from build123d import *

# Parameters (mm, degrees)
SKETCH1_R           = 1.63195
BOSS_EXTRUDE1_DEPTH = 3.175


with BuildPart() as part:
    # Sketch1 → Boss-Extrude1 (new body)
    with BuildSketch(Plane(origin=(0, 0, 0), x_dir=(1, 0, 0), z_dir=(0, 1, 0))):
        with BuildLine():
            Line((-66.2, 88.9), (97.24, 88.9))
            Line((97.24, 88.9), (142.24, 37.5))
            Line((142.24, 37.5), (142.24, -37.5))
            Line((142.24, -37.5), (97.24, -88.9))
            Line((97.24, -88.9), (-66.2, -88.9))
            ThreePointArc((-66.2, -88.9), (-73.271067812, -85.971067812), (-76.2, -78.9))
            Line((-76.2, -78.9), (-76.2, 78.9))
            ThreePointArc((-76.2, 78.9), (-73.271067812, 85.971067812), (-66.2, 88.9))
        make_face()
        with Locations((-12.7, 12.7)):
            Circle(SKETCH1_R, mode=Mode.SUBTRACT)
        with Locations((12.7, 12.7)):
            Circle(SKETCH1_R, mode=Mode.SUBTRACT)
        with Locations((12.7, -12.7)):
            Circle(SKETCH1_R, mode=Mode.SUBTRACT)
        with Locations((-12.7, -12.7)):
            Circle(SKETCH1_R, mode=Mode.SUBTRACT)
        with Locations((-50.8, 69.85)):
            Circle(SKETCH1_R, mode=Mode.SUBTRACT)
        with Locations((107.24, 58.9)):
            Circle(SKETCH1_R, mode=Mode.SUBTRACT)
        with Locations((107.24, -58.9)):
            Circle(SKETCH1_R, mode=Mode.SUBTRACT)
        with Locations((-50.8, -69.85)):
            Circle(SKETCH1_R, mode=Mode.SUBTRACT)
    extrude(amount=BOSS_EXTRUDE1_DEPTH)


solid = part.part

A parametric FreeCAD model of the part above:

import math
import FreeCAD as App
import Part
import Sketcher

doc = App.newDocument("Part")
body = doc.addObject("PartDesign::Body", "Body")

sketch1 = body.newObject("Sketcher::SketchObject", "Sketch")
sketch1.AttachmentSupport = (doc.getObject("XZ_Plane"), [""])
sketch1.MapMode = "FlatFace"
sketch1.addGeometry([
    Part.LineSegment(App.Vector(97.2, -88.9, 0), App.Vector(-66.2, -88.9, 0)),
    Part.ArcOfCircle(Part.Circle(App.Vector(-66.2, -78.9, 0), App.Vector(0, 0, 1), 10), math.radians(180), math.radians(270)),
    Part.LineSegment(App.Vector(-76.2, -78.9, 0), App.Vector(-76.2, 78.9, 0)),
    Part.ArcOfCircle(Part.Circle(App.Vector(-66.2, 78.9, 0), App.Vector(0, 0, 1), 10), math.radians(90), math.radians(180)),
    Part.LineSegment(App.Vector(-66.2, 88.9, 0), App.Vector(97.2, 88.9, 0)),
    Part.LineSegment(App.Vector(97.2, 88.9, 0), App.Vector(142.2, 37.5, 0)),
    Part.LineSegment(App.Vector(142.2, 37.5, 0), App.Vector(142.2, -37.5, 0)),
    Part.LineSegment(App.Vector(142.2, -37.5, 0), App.Vector(97.2, -88.9, 0)),
    Part.Circle(App.Vector(107.2, 58.9, 0), App.Vector(0, 0, 1), 1.6),
    Part.Circle(App.Vector(-50.8, 69.8, 0), App.Vector(0, 0, 1), 1.6),
    Part.Circle(App.Vector(12.7, 12.7, 0), App.Vector(0, 0, 1), 1.6),
    Part.Circle(App.Vector(-12.7, 12.7, 0), App.Vector(0, 0, 1), 1.6),
    Part.Circle(App.Vector(107.2, -58.9, 0), App.Vector(0, 0, 1), 1.6),
    Part.Circle(App.Vector(12.7, -12.7, 0), App.Vector(0, 0, 1), 1.6),
    Part.Circle(App.Vector(-12.7, -12.7, 0), App.Vector(0, 0, 1), 1.6),
    Part.Circle(App.Vector(-50.8, -69.8, 0), App.Vector(0, 0, 1), 1.6),
], False)
sketch1.addConstraint([
    Sketcher.Constraint("Tangent", 0, 2, 1, 2),
    Sketcher.Constraint("Tangent", 1, 1, 2, 1),
    Sketcher.Constraint("Tangent", 2, 2, 3, 2),
    Sketcher.Constraint("Tangent", 3, 1, 4, 1),
    Sketcher.Constraint("Coincident", 4, 2, 5, 1),
    Sketcher.Constraint("Coincident", 5, 2, 6, 1),
    Sketcher.Constraint("Coincident", 6, 2, 7, 1),
    Sketcher.Constraint("Coincident", 7, 2, 0, 1),
    Sketcher.Constraint("Horizontal", 0),
    Sketcher.Constraint("Vertical", 2),
    Sketcher.Constraint("Horizontal", 4),
    Sketcher.Constraint("Vertical", 6),
    Sketcher.Constraint("Equal", 1, 3),
    Sketcher.Constraint("Equal", 8, 9),
    Sketcher.Constraint("Equal", 9, 10),
    Sketcher.Constraint("Equal", 10, 11),
    Sketcher.Constraint("Equal", 11, 12),
    Sketcher.Constraint("Equal", 12, 13),
    Sketcher.Constraint("Equal", 13, 14),
    Sketcher.Constraint("Equal", 14, 15),
    Sketcher.Constraint("Symmetric", 11, 3, 13, 3, -1, 1),
    Sketcher.Constraint("Symmetric", 10, 3, 14, 3, -1, 1),
    Sketcher.Constraint("Symmetric", 10, 3, 11, 3, -2),
    Sketcher.Constraint("Symmetric", 8, 3, 12, 3, -1),
    Sketcher.Constraint("Symmetric", 9, 3, 15, 3, -1),
    Sketcher.Constraint("Symmetric", 4, 2, 7, 2, -1),
    Sketcher.Constraint("Equal", 5, 7),
    Sketcher.Constraint("Radius", 1, 10.0),
    Sketcher.Constraint("DistanceY", 6, 2, 6, 1, 75.0),
    Sketcher.Constraint("DistanceY", 2, 1, 2, 2, 157.8),
    Sketcher.Constraint("DistanceY", 8, 3, 3, 3, 20.0),
    Sketcher.Constraint("DistanceX", 4, 2, 8, 3, 10.0),
    Sketcher.Constraint("DistanceX", 8, 3, 5, 2, 35.0),
    Sketcher.Constraint("Diameter", 8, 3.2639),
    Sketcher.Constraint("DistanceX", 0, 2, 0, 1, 163.44),
    Sketcher.Constraint("DistanceX", 1, 3, -1, 1, 66.2),
    Sketcher.Constraint("DistanceX", 9, 3, -1, 1, 50.8),
    Sketcher.Constraint("DistanceX", -1, 1, 10, 3, 12.7),
    Sketcher.Constraint("DistanceY", -1, 1, 10, 3, 12.7),
    Sketcher.Constraint("DistanceY", -1, 1, 9, 3, 69.85),
])
pad1 = body.newObject("PartDesign::Pad", "Pad")
pad1.Profile = sketch1
pad1.Length = 3.175
pad1.Reversed = True

doc.recompute()
